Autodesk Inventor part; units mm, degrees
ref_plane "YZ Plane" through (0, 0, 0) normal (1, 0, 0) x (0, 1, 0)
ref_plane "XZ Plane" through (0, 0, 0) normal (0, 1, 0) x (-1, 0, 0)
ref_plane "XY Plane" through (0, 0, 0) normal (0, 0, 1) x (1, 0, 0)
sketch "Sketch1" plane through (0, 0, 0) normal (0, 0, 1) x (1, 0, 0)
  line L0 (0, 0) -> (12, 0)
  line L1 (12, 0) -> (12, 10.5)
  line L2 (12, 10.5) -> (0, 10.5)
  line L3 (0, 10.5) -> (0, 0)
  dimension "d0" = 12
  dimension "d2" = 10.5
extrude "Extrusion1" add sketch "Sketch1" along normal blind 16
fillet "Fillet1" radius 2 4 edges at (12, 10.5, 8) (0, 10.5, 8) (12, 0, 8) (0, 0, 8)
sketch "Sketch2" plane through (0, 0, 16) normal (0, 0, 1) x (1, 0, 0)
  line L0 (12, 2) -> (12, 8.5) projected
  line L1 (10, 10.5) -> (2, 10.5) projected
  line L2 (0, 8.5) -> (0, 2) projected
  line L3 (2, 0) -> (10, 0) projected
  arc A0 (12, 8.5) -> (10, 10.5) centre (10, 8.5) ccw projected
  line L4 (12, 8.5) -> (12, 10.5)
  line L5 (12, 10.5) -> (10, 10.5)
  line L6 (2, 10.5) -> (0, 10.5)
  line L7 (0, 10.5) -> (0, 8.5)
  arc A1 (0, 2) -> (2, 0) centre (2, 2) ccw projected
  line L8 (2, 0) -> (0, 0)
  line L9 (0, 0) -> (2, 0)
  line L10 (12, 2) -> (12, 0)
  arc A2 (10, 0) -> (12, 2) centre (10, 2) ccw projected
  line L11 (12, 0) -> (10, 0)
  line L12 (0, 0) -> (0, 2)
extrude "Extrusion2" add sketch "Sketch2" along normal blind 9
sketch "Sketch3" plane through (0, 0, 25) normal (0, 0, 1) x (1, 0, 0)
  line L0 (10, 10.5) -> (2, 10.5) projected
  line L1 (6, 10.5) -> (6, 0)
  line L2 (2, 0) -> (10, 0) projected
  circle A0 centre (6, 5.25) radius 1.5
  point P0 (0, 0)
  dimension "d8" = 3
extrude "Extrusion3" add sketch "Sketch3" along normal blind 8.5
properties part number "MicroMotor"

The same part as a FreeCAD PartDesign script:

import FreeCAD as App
import Part
import Sketcher

V = App.Vector
Q = App.Units.Quantity


def edges_at(feature, points):
    """Names of the edges that pass closest to the given points."""
    edges = feature.Shape.Edges
    near = lambda p: min(range(len(edges)), key=lambda i: edges[i].distToShape(Part.Vertex(*p))[0])
    return sorted({f"Edge{near(p) + 1}" for p in points})


def add_polygon(sketch, points):
    """Adds a closed chain of lines whose ends are joined by coincident constraints."""
    first, n = sketch.GeometryCount, len(points)
    for a, b in zip(points, points[1:] + points[:1]):
        sketch.addGeometry(Part.LineSegment(App.Vector(*a, 0), App.Vector(*b, 0)), False)
    for i in range(n):
        sketch.addConstraint(Sketcher.Constraint("Coincident", first + i, 2, first + (i + 1) % n, 1))

doc = App.newDocument("Part")
body = doc.addObject("PartDesign::Body", "Body")

# Sketch on XY plane
sketch1 = body.newObject("Sketcher::SketchObject", "Sketch")
sketch1.AttachmentSupport = (doc.getObject("XY_Plane"), [""])
sketch1.MapMode = "FlatFace"
add_polygon(sketch1, [(0, 10), (0, 0), (12, 0), (12, 10)])  # lines 0-3
sketch1.addConstraint([
    Sketcher.Constraint("Vertical", 0),
    Sketcher.Constraint("Horizontal", 1),
    Sketcher.Constraint("Vertical", 2),
    Sketcher.Constraint("Horizontal", 3),
    Sketcher.Constraint("Coincident", 0, 2, -1, 1),
    Sketcher.Constraint("DistanceX", 1, 1, 1, 2, Q("12 mm")),
    Sketcher.Constraint("DistanceY", 0, 2, 0, 1, Q("10.5 mm")),
])
pad1 = body.newObject("PartDesign::Pad", "Pad")
pad1.Profile = sketch1
pad1.Length = 16
doc.recompute()

fillet = body.newObject("PartDesign::Fillet", "Fillet")
fillet.Base = (pad1, edges_at(pad1, [
    (12, 10.5, 8),
    (0, 10.5, 8),
    (12, 0, 8),
    (0, 0, 8),
]))
fillet.Radius = 2

# Sketch on XY plane
sketch2 = body.newObject("Sketcher::SketchObject", "Sketch001")
sketch2.AttachmentSupport = (doc.getObject("XY_Plane"), [""])
sketch2.MapMode = "FlatFace"
sketch2.AttachmentOffset = App.Placement(V(0, 0, 16), App.Rotation())
add_polygon(sketch2, [(12, 0), (12, 10), (0, 10), (0, 0)])  # lines 0-3
sketch2.addConstraint([
    Sketcher.Constraint("Vertical", 0),
    Sketcher.Constraint("Horizontal", 1),
    Sketcher.Constraint("Vertical", 2),
    Sketcher.Constraint("Horizontal", 3),
    Sketcher.Constraint("Coincident", 2, 2, -1, 1),
    Sketcher.Constraint("DistanceX", 1, 2, 1, 1, Q("12 mm")),
    Sketcher.Constraint("DistanceY", 0, 1, 0, 2, Q("10.5 mm")),
])
pad2 = body.newObject("PartDesign::Pad", "Pad001")
pad2.Profile = sketch2
pad2.Length = 9

# Sketch on XY plane
sketch3 = body.newObject("Sketcher::SketchObject", "Sketch002")
sketch3.AttachmentSupport = (doc.getObject("XY_Plane"), [""])
sketch3.MapMode = "FlatFace"
sketch3.AttachmentOffset = App.Placement(V(0, 0, 25), App.Rotation())
sketch3.addGeometry(Part.Circle(V(6, 5.2, 0), V(0, 0, 1), 1.5), False)
sketch3.addConstraint([
    Sketcher.Constraint("Diameter", 0, Q("3 mm")),
    Sketcher.Constraint("DistanceX", -1, 1, 0, 3, Q("6 mm")),
    Sketcher.Constraint("DistanceY", -1, 1, 0, 3, Q("5.25 mm")),
])
pad3 = body.newObject("PartDesign::Pad", "Pad002")
pad3.Profile = sketch3
pad3.Length = 8.5

doc.recompute()
